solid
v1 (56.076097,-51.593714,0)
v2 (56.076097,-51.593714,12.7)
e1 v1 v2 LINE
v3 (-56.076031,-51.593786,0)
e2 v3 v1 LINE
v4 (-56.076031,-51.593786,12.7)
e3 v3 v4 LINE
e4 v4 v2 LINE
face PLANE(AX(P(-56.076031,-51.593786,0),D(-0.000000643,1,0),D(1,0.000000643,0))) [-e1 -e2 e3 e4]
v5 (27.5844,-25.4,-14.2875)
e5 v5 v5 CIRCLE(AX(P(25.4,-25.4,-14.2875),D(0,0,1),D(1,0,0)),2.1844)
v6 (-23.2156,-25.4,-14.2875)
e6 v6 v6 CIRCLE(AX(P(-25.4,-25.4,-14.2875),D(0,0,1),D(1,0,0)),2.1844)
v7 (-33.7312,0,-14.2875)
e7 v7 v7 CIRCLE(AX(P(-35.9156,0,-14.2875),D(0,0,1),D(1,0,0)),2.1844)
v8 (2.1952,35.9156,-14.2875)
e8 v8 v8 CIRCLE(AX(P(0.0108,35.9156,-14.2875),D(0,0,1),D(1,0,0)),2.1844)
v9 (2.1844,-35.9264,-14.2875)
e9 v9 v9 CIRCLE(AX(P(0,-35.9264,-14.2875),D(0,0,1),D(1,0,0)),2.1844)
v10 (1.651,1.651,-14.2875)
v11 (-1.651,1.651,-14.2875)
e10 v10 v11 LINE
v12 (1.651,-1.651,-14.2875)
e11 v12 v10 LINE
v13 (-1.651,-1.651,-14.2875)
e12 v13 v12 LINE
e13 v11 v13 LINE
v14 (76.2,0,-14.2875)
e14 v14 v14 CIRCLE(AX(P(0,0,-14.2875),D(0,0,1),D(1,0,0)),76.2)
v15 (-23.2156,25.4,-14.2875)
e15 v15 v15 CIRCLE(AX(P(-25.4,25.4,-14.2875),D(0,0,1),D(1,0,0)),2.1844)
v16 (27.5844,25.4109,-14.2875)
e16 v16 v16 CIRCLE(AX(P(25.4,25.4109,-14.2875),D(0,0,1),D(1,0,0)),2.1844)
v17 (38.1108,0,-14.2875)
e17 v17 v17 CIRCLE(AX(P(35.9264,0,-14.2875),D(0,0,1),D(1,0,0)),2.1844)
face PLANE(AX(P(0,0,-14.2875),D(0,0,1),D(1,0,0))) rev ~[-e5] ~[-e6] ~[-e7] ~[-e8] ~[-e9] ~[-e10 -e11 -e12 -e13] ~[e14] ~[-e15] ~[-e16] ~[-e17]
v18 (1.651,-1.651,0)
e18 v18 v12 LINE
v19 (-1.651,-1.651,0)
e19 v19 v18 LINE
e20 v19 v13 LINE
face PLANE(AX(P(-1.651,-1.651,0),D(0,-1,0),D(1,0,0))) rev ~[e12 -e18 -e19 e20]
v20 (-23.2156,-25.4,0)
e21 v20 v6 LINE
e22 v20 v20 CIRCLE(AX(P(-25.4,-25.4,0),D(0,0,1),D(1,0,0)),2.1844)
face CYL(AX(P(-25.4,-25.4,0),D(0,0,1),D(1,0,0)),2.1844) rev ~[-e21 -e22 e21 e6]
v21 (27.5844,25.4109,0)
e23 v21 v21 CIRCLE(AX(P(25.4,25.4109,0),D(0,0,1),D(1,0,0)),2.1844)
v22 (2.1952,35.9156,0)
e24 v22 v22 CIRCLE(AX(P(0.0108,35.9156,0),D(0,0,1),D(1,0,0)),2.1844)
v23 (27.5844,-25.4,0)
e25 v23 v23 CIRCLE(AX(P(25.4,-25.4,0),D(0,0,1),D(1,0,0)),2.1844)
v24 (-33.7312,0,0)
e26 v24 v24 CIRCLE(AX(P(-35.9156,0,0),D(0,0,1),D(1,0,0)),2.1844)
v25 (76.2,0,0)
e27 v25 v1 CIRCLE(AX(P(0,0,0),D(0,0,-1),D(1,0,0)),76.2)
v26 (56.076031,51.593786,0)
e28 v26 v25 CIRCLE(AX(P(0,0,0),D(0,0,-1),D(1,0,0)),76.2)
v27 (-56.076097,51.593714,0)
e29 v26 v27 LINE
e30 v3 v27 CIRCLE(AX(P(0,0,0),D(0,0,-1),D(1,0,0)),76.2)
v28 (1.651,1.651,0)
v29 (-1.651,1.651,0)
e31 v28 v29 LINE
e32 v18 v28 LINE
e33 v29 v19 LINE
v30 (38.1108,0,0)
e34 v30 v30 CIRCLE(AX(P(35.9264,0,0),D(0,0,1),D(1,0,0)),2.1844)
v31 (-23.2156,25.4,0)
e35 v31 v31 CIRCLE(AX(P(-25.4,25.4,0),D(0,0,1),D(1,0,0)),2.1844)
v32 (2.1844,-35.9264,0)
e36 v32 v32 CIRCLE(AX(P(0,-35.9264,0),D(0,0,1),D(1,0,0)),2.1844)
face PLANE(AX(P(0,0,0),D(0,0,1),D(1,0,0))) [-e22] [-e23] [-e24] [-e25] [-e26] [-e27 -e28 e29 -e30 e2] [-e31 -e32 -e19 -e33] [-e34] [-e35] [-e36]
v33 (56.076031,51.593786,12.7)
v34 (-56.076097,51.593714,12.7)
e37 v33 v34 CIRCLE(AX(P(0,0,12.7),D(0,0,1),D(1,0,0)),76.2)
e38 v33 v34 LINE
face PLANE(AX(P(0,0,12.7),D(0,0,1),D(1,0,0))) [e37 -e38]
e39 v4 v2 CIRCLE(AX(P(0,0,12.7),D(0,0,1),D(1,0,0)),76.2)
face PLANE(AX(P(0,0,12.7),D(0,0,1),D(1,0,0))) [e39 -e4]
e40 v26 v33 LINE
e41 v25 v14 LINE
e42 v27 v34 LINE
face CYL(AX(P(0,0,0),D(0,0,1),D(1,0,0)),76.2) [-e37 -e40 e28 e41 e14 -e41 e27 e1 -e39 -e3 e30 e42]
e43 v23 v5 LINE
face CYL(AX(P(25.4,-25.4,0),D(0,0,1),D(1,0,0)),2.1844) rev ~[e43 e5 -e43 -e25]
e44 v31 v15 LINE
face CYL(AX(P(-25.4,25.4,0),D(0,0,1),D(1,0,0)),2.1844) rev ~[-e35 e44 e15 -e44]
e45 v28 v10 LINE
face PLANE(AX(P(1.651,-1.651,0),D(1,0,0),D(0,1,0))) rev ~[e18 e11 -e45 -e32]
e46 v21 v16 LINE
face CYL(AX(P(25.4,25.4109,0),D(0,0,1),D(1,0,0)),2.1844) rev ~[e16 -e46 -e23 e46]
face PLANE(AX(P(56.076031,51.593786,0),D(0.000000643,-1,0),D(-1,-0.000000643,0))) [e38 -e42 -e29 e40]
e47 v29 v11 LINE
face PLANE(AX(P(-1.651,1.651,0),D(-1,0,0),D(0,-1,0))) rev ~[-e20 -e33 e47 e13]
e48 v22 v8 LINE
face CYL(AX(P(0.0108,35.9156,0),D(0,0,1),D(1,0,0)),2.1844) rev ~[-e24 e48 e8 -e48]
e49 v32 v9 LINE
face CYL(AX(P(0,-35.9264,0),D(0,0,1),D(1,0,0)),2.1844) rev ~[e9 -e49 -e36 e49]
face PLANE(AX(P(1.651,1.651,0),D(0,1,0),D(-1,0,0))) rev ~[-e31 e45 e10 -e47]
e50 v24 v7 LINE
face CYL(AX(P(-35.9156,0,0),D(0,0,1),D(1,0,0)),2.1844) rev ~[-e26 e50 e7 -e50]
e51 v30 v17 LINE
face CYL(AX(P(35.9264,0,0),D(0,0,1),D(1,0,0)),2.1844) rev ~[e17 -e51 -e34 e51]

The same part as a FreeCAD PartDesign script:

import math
import FreeCAD as App
import Part
import Sketcher
from FreeCAD import Vector
Q = App.Units.Quantity


def add_polygon(sketch, points):
    """Adds a closed chain of lines whose ends are joined by coincident constraints."""
    first, n = sketch.GeometryCount, len(points)
    for a, b in zip(points, points[1:] + points[:1]):
        sketch.addGeometry(Part.LineSegment(App.Vector(*a, 0), App.Vector(*b, 0)), False)
    for i in range(n):
        sketch.addConstraint(Sketcher.Constraint("Coincident", first + i, 2, first + (i + 1) % n, 1))

doc = App.newDocument("Part")
body = doc.addObject("PartDesign::Body", "Body")

# Sketch on XY plane
sketch1 = body.newObject("Sketcher::SketchObject", "Sketch")
sketch1.AttachmentSupport = (doc.getObject("XY_Plane"), [""])
sketch1.MapMode = "FlatFace"
sketch1.addGeometry(Part.Circle(Vector(0, 0, 0), Vector(0, 0, 1), 76.2), False)  # 0
sketch1.addGeometry(Part.Circle(Vector(-25.4, -25.4, 0), Vector(0, 0, 1), 2.2), False)  # 1
sketch1.addGeometry(Part.Circle(Vector(0, -35.9, 0), Vector(0, 0, 1), 2.2), False)  # 2
sketch1.addGeometry(Part.Circle(Vector(25.4, -25.4, 0), Vector(0, 0, 1), 2.2), False)  # 3
sketch1.addGeometry(Part.Circle(Vector(-35.9, 0, 0), Vector(0, 0, 1), 2.2), False)  # 4
sketch1.addGeometry(Part.Circle(Vector(-25.4, 25.4, 0), Vector(0, 0, 1), 2.2), False)  # 5
add_polygon(sketch1, [(-1.7, 1.7), (1.7, 1.7), (1.7, -1.7), (-1.7, -1.7)])  # lines 6-9
sketch1.addGeometry(Part.Circle(Vector(35.9, 0, 0), Vector(0, 0, 1), 2.2), False)  # 10
sketch1.addGeometry(Part.Circle(Vector(0, 35.9, 0), Vector(0, 0, 1), 2.2), False)  # 11
sketch1.addGeometry(Part.Circle(Vector(25.4, 25.4, 0), Vector(0, 0, 1), 2.2), False)  # 12
sketch1.addConstraint([
    Sketcher.Constraint("Horizontal", 6),
    Sketcher.Constraint("Vertical", 7),
    Sketcher.Constraint("Horizontal", 8),
    Sketcher.Constraint("Vertical", 9),
    Sketcher.Constraint("Coincident", 0, 3, -1, 1),
    Sketcher.Constraint("Equal", 1, 2),
    Sketcher.Constraint("Equal", 2, 3),
    Sketcher.Constraint("Equal", 3, 4),
    Sketcher.Constraint("Equal", 4, 5),
    Sketcher.Constraint("Equal", 5, 10),
    Sketcher.Constraint("Equal", 10, 11),
    Sketcher.Constraint("Equal", 11, 12),
    Sketcher.Constraint("Symmetric", 3, 3, 5, 3, -1, 1),
    Sketcher.Constraint("Symmetric", 6, 2, 8, 2, -1, 1),
    Sketcher.Constraint("Symmetric", 1, 3, 3, 3, -2),
    Sketcher.Constraint("PointOnObject", 2, 3, -2),
    Sketcher.Constraint("PointOnObject", 4, 3, -1),
    Sketcher.Constraint("PointOnObject", 10, 3, -1),
    Sketcher.Constraint("Vertical", 3, 3, 12, 3),
    Sketcher.Constraint("Equal", 8, 7),
    Sketcher.Constraint("Diameter", 0, Q("6 in")),
    Sketcher.Constraint("Diameter", 1, Q("0.172 in")),
    Sketcher.Constraint("DistanceX", 1, 3, -1, 1, Q("1 in")),
    Sketcher.Constraint("DistanceY", 1, 3, -1, 1, Q("1 in")),
    Sketcher.Constraint("DistanceX", 6, 1, 6, 2, Q("0.13 in")),
    Sketcher.Constraint("DistanceX", 4, 3, -1, 1, Q("1.414 in")),
    Sketcher.Constraint("DistanceY", -1, 1, 11, 3, Q("1.414 in")),
    Sketcher.Constraint("DistanceX", 11, 3, 10, 3, Q("1.414 in")),
    Sketcher.Constraint("DistanceY", 2, 3, -1, 1, 35.9264),
    Sketcher.Constraint("DistanceX", -1, 1, 10, 3, 35.9264),
    Sketcher.Constraint("DistanceY", -1, 1, 12, 3, 25.411),
])
pad1 = body.newObject("PartDesign::Pad", "Pad")
pad1.Profile = sketch1
pad1.Length = Q("0.5625 in")
pad1.Reversed = True

# Sketch on XY plane
sketch2 = body.newObject("Sketcher::SketchObject", "Sketch001")
sketch2.AttachmentSupport = (doc.getObject("XY_Plane"), [""])
sketch2.MapMode = "FlatFace"
sketch2.addGeometry([
    Part.LineSegment(Vector(-56, 52, 0), Vector(56, 52, 0)),
    Part.ArcOfCircle(Part.Circle(Vector(0, 0, 0), Vector(0, 0, 1), 76), math.radians(43), math.radians(137)),
    Part.ArcOfCircle(Part.Circle(Vector(0, 0, 0), Vector(0, 0, 1), 76), math.radians(-137), math.radians(-43)),
    Part.LineSegment(Vector(56, -52, 0), Vector(-56, -52, 0)),
], False)
sketch2.addConstraint([
    Sketcher.Constraint("Coincident", 0, 1, 1, 2),
    Sketcher.Constraint("Coincident", 1, 1, 0, 2),
    Sketcher.Constraint("Coincident", 2, 1, 3, 2),
    Sketcher.Constraint("Coincident", 3, 1, 2, 2),
    Sketcher.Constraint("Horizontal", 0),
    Sketcher.Constraint("Horizontal", 3),
    Sketcher.Constraint("Coincident", 1, 3, -1, 1),
    Sketcher.Constraint("Coincident", 2, 3, -1, 1),
    Sketcher.Constraint("Equal", 1, 2),
    Sketcher.Constraint("Vertical", 0, 1, 2, 1),
    Sketcher.Constraint("Radius", 1, Q("3 in")),
    Sketcher.Constraint("DistanceY", -1, 1, 0, 1, Q("2.031248 in")),
])
pad2 = body.newObject("PartDesign::Pad", "Pad001")
pad2.Profile = sketch2
pad2.Length = Q("0.5 in")

doc.recompute()
